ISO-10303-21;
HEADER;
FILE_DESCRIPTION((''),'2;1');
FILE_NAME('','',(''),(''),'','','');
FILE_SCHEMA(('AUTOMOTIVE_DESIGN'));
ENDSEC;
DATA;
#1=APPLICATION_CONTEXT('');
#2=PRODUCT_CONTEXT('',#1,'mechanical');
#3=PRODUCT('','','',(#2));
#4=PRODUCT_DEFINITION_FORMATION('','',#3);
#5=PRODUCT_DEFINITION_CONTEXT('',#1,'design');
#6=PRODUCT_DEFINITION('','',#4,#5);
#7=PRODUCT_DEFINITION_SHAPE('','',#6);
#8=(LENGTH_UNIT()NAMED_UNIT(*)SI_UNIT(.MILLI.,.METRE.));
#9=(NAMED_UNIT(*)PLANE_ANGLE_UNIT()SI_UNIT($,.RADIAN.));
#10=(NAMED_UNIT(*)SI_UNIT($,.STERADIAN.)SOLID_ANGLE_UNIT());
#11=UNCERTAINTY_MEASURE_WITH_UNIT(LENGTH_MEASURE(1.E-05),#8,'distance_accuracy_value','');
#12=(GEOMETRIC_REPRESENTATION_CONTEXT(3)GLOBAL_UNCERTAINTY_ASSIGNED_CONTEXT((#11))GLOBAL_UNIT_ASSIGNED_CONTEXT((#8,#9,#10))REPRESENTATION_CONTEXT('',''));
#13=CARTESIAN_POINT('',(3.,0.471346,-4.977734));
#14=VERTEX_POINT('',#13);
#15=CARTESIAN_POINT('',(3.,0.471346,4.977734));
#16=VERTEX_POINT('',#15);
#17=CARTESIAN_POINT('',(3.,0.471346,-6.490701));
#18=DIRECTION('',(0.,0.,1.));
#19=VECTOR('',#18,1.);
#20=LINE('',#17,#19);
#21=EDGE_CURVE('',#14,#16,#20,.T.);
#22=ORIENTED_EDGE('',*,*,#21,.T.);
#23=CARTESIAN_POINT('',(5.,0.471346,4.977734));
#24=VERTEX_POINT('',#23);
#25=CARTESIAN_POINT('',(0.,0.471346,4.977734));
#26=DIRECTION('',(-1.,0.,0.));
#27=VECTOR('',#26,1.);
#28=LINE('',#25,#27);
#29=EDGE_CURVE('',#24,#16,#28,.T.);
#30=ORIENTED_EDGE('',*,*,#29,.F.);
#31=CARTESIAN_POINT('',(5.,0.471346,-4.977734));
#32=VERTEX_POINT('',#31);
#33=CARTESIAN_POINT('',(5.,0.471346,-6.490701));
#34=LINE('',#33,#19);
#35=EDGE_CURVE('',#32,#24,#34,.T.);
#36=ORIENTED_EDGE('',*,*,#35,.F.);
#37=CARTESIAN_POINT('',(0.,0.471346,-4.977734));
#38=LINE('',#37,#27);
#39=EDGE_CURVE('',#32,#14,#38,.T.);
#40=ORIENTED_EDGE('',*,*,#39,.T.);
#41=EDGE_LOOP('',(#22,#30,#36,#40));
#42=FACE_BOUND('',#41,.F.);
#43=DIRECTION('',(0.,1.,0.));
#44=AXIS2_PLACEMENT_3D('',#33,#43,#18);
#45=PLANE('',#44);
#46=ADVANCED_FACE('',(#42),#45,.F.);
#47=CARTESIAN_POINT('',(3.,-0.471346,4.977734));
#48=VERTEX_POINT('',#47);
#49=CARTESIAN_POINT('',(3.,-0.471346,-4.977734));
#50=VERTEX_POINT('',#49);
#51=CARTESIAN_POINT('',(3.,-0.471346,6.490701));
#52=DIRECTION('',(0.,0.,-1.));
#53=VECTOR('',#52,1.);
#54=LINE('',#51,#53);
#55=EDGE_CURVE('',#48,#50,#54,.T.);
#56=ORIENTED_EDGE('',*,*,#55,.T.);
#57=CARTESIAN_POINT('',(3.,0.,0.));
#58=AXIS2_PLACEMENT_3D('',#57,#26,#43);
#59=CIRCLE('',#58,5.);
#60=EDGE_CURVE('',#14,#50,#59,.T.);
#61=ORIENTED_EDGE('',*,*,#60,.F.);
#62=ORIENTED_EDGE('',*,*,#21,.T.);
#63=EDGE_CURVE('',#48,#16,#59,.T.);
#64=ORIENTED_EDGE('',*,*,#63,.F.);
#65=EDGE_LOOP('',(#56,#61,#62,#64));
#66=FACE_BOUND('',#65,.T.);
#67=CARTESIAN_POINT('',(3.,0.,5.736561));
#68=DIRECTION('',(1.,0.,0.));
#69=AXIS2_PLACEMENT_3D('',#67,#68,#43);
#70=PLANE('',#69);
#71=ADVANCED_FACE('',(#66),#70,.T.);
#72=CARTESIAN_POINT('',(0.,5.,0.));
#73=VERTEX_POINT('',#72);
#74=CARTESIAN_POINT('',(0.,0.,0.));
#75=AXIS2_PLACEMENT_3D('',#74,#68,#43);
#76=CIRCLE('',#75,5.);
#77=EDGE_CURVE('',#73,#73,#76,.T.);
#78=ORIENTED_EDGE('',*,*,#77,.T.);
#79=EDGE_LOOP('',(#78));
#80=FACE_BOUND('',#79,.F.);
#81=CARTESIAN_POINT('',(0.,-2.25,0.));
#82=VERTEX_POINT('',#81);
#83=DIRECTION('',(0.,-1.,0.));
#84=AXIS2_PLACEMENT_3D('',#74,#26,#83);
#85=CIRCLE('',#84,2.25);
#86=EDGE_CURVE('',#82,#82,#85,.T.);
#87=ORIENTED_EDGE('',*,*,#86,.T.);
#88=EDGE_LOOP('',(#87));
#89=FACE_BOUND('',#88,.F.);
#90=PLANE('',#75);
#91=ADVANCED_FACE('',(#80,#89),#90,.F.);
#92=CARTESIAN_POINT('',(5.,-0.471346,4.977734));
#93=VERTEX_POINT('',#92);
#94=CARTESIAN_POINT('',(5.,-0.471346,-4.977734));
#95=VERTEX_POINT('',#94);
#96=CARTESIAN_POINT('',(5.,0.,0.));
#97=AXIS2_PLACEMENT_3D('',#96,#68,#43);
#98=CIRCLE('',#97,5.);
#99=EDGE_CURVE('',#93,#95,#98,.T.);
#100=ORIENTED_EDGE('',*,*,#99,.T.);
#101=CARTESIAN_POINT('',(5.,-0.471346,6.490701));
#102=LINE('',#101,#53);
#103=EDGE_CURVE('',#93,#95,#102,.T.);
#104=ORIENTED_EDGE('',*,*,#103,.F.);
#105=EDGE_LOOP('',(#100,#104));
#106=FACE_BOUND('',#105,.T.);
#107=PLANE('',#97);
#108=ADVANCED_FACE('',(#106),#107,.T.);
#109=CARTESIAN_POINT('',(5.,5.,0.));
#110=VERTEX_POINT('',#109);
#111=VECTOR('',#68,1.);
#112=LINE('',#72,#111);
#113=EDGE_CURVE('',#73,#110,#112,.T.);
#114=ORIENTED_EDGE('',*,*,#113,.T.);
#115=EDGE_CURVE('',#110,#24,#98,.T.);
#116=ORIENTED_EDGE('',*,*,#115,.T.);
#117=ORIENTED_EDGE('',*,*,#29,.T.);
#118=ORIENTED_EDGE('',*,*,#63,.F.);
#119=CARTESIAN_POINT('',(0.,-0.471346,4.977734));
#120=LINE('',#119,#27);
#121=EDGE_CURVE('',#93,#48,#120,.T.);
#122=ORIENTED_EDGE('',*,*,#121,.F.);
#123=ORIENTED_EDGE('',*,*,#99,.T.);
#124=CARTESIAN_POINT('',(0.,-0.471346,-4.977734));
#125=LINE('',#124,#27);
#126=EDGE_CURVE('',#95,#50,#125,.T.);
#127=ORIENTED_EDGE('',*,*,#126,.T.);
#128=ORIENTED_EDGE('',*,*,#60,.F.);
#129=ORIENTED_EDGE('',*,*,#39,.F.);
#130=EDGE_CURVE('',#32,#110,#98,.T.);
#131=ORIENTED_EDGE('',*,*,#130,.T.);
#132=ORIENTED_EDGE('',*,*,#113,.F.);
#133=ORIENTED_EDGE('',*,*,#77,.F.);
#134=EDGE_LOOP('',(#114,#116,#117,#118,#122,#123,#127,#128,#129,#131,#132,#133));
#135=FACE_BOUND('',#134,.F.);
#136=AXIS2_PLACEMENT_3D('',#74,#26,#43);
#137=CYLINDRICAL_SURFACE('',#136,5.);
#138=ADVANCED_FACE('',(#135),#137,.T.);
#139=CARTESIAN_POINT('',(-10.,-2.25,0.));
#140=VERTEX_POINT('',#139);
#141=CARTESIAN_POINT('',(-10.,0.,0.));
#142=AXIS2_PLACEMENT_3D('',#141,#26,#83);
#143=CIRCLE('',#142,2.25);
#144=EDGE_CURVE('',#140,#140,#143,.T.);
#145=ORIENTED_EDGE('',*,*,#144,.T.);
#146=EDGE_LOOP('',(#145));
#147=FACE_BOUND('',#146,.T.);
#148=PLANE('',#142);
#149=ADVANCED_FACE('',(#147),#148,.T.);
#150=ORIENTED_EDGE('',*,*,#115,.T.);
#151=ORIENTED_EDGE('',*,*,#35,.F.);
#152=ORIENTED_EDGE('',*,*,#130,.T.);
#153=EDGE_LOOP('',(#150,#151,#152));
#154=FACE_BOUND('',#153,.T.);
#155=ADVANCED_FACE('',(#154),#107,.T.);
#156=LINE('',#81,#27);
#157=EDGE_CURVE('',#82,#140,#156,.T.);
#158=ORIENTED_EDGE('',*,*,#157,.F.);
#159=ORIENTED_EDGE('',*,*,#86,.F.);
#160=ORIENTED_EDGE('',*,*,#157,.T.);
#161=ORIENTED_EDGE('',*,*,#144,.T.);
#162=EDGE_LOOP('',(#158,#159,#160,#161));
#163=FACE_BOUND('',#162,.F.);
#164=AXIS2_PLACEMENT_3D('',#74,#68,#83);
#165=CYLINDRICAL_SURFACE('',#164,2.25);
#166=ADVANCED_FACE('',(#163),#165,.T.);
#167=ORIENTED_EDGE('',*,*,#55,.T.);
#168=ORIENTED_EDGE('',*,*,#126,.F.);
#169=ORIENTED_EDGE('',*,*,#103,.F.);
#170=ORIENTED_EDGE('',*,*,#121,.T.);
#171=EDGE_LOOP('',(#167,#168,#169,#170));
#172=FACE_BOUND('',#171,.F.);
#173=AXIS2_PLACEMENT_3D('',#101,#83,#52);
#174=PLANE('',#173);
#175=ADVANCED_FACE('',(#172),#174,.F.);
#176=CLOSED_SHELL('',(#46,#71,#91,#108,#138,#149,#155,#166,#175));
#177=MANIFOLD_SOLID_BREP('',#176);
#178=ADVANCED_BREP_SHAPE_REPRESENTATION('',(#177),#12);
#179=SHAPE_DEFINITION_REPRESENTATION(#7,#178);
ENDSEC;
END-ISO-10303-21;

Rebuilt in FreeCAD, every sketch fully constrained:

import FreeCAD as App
import Part
import Sketcher
Q = App.Units.Quantity


def add_polygon(sketch, points):
    """Adds a closed chain of lines whose ends are joined by coincident constraints."""
    first, n = sketch.GeometryCount, len(points)
    for a, b in zip(points, points[1:] + points[:1]):
        sketch.addGeometry(Part.LineSegment(App.Vector(*a, 0), App.Vector(*b, 0)), False)
    for i in range(n):
        sketch.addConstraint(Sketcher.Constraint("Coincident", first + i, 2, first + (i + 1) % n, 1))

doc = App.newDocument("Part")
body = doc.addObject("PartDesign::Body", "Body")

# Sketch on YZ plane
sketch1 = body.newObject("Sketcher::SketchObject", "Sketch")
sketch1.AttachmentSupport = (doc.getObject("YZ_Plane"), [""])
sketch1.MapMode = "FlatFace"
sketch1.addGeometry(Part.Circle(App.Vector(0, 0, 0), App.Vector(0, 0, 1), 5), False)
sketch1.addConstraint([
    Sketcher.Constraint("Coincident", 0, 3, -1, 1),
    Sketcher.Constraint("Diameter", 0, Q("10 mm")),
])
pad1 = body.newObject("PartDesign::Pad", "Pad")
pad1.Profile = sketch1
pad1.Length = 5

# Sketch on YZ plane
sketch2 = body.newObject("Sketcher::SketchObject", "Sketch001")
sketch2.AttachmentSupport = (doc.getObject("YZ_Plane"), [""])
sketch2.MapMode = "FlatFace"
sketch2.addGeometry(Part.Circle(App.Vector(0, 0, 0), App.Vector(0, 0, 1), 2.2), False)
sketch2.addConstraint([
    Sketcher.Constraint("Coincident", 0, 3, -1, 1),
    Sketcher.Constraint("Diameter", 0, Q("4.5 mm")),
])
pad2 = body.newObject("PartDesign::Pad", "Pad001")
pad2.Profile = sketch2
pad2.Length = 10
pad2.Reversed = True

# Sketch on YZ plane
sketch3 = body.newObject("Sketcher::SketchObject", "Sketch002")
sketch3.AttachmentSupport = (doc.getObject("YZ_Plane"), [""])
sketch3.MapMode = "FlatFace"
sketch3.AttachmentOffset = App.Placement(App.Vector(0, 0, 5), App.Rotation())
add_polygon(sketch3, [(0.5, 6.5), (-0.5, 6.5), (-0.5, -6.5), (0.5, -6.5)])  # lines 0-3
sketch3.addConstraint([
    Sketcher.Constraint("Horizontal", 0),
    Sketcher.Constraint("Vertical", 1),
    Sketcher.Constraint("Horizontal", 2),
    Sketcher.Constraint("Vertical", 3),
    Sketcher.Constraint("Symmetric", 0, 2, 2, 2, -1, 1),
    Sketcher.Constraint("DistanceY", 1, 2, 1, 1, Q("12.981402 mm")),
    Sketcher.Constraint("DistanceX", 0, 2, 0, 1, Q("0.942692 mm")),
])
pocket1 = body.newObject("PartDesign::Pocket", "Pocket")
pocket1.Profile = sketch3
pocket1.Length = 2

doc.recompute()
